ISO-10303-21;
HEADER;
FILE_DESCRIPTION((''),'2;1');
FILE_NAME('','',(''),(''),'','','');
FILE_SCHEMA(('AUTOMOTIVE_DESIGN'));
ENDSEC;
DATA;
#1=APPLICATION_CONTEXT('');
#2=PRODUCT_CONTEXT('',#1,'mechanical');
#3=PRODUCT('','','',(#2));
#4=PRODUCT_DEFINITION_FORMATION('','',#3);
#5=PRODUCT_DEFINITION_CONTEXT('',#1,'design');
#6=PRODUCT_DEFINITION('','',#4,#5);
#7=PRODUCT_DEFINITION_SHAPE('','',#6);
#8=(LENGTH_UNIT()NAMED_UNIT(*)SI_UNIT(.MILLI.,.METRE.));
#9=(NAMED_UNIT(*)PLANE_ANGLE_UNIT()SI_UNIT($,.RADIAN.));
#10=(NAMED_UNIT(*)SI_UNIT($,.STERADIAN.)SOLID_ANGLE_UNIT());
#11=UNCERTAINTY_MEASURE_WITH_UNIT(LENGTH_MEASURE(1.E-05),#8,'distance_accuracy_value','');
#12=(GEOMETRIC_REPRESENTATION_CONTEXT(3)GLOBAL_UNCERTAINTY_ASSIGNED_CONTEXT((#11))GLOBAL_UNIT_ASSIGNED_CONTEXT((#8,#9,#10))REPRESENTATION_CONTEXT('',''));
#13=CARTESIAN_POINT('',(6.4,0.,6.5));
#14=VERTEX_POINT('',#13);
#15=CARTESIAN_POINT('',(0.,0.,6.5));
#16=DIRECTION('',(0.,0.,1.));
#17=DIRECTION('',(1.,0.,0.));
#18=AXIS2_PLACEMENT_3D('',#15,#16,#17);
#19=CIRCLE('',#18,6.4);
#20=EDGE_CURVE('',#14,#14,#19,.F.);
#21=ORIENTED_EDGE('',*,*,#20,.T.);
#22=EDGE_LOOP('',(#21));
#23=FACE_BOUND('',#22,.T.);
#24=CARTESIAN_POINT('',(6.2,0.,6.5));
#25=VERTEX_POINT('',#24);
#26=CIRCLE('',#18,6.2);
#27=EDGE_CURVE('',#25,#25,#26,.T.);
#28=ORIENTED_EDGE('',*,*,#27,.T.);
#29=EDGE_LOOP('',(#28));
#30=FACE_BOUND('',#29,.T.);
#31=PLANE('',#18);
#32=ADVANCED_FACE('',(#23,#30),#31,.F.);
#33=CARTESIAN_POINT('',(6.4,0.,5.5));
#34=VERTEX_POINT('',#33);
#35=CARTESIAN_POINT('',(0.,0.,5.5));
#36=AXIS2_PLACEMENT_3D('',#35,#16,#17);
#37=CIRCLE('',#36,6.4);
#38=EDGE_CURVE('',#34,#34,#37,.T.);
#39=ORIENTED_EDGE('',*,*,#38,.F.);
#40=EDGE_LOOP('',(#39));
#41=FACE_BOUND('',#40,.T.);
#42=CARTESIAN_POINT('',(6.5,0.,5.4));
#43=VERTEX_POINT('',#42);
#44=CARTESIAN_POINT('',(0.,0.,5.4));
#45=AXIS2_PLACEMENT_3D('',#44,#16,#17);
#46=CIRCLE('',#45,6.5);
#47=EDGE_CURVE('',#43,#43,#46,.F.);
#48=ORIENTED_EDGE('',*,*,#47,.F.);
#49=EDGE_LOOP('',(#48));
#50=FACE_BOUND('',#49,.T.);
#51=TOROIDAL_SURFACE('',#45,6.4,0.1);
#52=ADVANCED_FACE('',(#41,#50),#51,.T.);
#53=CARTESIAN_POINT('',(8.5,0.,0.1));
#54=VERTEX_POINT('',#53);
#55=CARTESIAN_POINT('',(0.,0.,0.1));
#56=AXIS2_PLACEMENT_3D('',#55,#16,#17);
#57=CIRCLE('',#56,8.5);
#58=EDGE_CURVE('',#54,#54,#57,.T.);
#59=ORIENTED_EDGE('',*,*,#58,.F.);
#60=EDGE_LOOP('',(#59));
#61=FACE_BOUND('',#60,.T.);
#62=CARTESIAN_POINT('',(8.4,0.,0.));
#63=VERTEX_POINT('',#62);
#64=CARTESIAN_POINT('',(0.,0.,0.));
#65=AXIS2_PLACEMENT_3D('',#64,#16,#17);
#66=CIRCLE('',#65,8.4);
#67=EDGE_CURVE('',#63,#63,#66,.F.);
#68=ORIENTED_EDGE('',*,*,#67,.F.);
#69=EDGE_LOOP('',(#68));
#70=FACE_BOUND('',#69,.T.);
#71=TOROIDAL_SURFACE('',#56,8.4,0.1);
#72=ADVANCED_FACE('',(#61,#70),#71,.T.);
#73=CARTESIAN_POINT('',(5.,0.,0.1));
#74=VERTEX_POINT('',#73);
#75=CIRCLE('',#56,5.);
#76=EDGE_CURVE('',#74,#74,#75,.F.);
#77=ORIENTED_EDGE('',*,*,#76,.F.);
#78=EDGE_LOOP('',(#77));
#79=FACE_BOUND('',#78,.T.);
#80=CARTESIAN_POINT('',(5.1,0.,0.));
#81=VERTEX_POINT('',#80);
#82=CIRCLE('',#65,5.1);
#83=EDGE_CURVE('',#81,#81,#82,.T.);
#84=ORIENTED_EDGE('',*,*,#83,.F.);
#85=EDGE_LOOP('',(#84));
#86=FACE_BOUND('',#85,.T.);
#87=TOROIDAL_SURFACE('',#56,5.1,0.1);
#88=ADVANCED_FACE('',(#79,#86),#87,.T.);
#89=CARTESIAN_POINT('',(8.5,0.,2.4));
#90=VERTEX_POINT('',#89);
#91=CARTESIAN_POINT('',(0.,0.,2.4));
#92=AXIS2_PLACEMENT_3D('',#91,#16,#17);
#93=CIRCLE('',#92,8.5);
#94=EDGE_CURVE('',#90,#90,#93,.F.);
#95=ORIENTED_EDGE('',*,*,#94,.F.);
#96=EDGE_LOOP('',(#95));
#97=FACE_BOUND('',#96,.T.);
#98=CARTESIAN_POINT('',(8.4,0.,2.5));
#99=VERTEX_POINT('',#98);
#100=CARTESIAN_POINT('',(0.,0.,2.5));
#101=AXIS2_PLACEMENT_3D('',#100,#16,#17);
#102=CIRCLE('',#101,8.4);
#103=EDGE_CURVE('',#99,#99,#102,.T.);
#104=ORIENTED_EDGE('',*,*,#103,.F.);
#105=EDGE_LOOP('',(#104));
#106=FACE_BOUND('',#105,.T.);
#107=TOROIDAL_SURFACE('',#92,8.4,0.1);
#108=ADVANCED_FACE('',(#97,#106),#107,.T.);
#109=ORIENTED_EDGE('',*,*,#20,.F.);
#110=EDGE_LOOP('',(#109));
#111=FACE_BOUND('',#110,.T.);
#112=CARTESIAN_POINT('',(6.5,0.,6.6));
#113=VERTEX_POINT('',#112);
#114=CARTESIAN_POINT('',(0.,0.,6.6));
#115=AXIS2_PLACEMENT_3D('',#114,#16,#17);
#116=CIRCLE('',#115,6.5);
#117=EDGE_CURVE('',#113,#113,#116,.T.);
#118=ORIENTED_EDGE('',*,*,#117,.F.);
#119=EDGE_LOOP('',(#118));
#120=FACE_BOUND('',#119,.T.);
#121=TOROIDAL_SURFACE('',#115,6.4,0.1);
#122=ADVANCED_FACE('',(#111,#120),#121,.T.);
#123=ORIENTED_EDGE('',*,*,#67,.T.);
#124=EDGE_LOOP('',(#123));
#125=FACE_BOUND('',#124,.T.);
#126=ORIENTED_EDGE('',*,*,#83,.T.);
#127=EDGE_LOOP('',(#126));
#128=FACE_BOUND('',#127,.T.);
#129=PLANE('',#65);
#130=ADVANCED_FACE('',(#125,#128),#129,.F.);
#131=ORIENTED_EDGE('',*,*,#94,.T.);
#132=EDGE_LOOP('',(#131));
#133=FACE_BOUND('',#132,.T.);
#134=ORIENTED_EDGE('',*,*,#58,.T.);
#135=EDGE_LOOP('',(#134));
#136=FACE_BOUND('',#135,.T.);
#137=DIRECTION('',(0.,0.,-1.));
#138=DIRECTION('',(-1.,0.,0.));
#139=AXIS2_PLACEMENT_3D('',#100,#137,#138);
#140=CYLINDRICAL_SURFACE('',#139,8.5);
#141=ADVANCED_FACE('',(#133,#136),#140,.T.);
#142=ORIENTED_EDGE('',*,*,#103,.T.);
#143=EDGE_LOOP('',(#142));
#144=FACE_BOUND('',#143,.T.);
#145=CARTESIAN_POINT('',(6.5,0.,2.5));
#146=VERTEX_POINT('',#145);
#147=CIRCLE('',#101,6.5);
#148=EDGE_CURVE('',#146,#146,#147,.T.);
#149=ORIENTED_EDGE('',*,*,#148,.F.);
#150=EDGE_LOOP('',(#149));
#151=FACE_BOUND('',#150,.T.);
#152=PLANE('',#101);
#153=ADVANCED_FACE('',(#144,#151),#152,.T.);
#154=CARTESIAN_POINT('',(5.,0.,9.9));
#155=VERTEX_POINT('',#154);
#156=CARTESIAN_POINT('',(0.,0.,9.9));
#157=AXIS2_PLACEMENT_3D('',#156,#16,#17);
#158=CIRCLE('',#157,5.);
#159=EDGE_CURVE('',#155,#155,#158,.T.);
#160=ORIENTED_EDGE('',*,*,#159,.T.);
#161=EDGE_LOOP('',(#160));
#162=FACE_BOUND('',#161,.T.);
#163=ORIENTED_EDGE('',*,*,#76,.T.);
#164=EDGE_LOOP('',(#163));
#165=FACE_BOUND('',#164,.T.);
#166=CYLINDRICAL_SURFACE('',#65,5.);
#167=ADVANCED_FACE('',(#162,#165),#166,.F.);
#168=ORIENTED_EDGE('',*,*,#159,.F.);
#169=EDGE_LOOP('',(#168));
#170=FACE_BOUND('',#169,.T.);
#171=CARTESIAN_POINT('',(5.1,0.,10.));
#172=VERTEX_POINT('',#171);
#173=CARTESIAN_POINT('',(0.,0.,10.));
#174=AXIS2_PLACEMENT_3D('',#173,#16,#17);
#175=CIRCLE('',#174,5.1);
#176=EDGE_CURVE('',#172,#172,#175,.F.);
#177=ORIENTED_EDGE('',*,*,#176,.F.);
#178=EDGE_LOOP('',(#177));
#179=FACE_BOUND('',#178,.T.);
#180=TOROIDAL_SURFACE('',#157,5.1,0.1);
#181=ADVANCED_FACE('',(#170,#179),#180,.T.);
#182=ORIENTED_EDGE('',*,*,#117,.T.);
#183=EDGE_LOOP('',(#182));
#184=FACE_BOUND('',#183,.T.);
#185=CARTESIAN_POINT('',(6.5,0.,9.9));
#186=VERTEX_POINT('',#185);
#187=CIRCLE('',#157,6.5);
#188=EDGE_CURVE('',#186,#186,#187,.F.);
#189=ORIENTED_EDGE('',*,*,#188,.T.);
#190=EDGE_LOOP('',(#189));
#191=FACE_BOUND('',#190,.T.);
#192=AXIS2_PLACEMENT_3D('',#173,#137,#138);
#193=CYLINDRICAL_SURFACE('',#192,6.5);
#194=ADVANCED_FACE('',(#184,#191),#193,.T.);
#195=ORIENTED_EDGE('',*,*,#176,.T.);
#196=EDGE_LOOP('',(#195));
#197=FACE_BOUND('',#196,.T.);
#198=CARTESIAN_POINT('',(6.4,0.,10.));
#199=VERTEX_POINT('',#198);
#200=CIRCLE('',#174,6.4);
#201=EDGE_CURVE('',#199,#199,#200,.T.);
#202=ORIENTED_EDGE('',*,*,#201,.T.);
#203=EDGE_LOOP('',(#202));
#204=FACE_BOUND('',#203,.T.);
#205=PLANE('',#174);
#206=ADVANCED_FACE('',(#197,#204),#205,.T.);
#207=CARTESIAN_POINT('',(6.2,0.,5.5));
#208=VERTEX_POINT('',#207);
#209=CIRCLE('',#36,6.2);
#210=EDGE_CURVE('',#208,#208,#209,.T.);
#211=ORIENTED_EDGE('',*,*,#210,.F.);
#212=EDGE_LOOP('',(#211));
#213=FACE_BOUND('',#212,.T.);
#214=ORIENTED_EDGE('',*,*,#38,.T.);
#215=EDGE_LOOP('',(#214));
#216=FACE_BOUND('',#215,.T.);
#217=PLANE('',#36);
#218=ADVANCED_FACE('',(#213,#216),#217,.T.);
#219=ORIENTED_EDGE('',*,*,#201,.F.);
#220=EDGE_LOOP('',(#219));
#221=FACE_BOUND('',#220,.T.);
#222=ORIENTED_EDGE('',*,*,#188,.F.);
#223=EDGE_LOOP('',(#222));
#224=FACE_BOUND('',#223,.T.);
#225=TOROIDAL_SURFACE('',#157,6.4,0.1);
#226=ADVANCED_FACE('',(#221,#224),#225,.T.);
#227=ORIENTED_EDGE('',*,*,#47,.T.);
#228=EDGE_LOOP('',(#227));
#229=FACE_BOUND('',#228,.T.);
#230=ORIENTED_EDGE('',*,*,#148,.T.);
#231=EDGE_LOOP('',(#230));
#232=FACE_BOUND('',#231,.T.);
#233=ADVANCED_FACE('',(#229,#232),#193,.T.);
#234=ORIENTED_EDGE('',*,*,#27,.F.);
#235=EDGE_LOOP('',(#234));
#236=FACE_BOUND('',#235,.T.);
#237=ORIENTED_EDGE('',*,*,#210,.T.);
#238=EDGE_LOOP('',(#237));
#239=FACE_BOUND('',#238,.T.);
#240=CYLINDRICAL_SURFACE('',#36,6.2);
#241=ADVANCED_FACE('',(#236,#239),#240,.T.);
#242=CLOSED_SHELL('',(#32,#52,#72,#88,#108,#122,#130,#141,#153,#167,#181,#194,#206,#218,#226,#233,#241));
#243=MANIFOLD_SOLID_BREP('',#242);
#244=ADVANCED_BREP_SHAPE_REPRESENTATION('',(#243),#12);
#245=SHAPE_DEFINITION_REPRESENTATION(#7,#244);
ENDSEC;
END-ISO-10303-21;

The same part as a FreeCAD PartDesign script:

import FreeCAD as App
import Part
import Sketcher

V = App.Vector


def edges_at(feature, points):
    """Names of the edges that pass closest to the given points."""
    edges = feature.Shape.Edges
    near = lambda p: min(range(len(edges)), key=lambda i: edges[i].distToShape(Part.Vertex(*p))[0])
    return sorted({f"Edge{near(p) + 1}" for p in points})

doc = App.newDocument("Part")
body = doc.addObject("PartDesign::Body", "Body")

# Sketch on XY plane
sketch1 = body.newObject("Sketcher::SketchObject", "Sketch")
sketch1.AttachmentSupport = (doc.getObject("XY_Plane"), [""])
sketch1.MapMode = "FlatFace"
sketch1.addGeometry(Part.Circle(V(0, 0, 0), V(0, 0, 1), 8), False)
sketch1.addConstraint([
    Sketcher.Constraint("Coincident", 0, 3, -1, 1),
    Sketcher.Constraint("Diameter", 0, 17.0),
])
pad1 = body.newObject("PartDesign::Pad", "Pad")
pad1.Profile = sketch1
pad1.Length = 2.5

# Sketch on XY plane
sketch2 = body.newObject("Sketcher::SketchObject", "Sketch001")
sketch2.AttachmentSupport = (doc.getObject("XY_Plane"), [""])
sketch2.MapMode = "FlatFace"
sketch2.AttachmentOffset = App.Placement(V(0, 0, 2.5), App.Rotation())
sketch2.addGeometry(Part.Circle(V(0, 0, 0), V(0, 0, 1), 6), False)
sketch2.addConstraint([
    Sketcher.Constraint("Coincident", 0, 3, -1, 1),
    Sketcher.Constraint("Diameter", 0, 13.0),
])
pad2 = body.newObject("PartDesign::Pad", "Pad001")
pad2.Profile = sketch2
pad2.Length = 7.5

# Sketch on XY plane
sketch3 = body.newObject("Sketcher::SketchObject", "Sketch002")
sketch3.AttachmentSupport = (doc.getObject("XY_Plane"), [""])
sketch3.MapMode = "FlatFace"
sketch3.AttachmentOffset = App.Placement(V(0, 0, 10), App.Rotation())
sketch3.addGeometry(Part.Circle(V(0, 0, 0), V(0, 0, 1), 5), False)
sketch3.addConstraint([
    Sketcher.Constraint("Coincident", 0, 3, -1, 1),
    Sketcher.Constraint("Diameter", 0, 10.0),
])
pocket1 = body.newObject("PartDesign::Pocket", "Pocket")
pocket1.Profile = sketch3
pocket1.Type = "ThroughAll"
doc.recompute()

fillet = body.newObject("PartDesign::Fillet", "Fillet")
fillet.Base = (pocket1, edges_at(pocket1, [
    (-5, 0, 0),
    (-5, 0, 10),
    (-8.5, 0, 0),
    (-8.5, 0, 2.5),
    (-6.5, 0, 10),
]))
fillet.Radius = 0.1

# Sketch on XY plane
sketch4 = body.newObject("Sketcher::SketchObject", "Sketch003")
sketch4.AttachmentSupport = (doc.getObject("XY_Plane"), [""])
sketch4.MapMode = "FlatFace"
sketch4.AttachmentOffset = App.Placement(V(0, 0, 5.5), App.Rotation())
sketch4.addGeometry([
    Part.Circle(V(0, 0, 0), V(0, 0, 1), 6),
    Part.Circle(V(0, 0, 0), V(0, 0, 1), 6),
], False)
sketch4.addConstraint([
    Sketcher.Constraint("Coincident", 0, 3, -1, 1),
    Sketcher.Constraint("Coincident", 1, 3, -1, 1),
    Sketcher.Constraint("Diameter", 0, 13.0),
    Sketcher.Constraint("Diameter", 1, 12.4),
])
pocket2 = body.newObject("PartDesign::Pocket", "Pocket001")
pocket2.Profile = sketch4
pocket2.Length = 1
pocket2.Reversed = True
doc.recompute()

fillet2 = body.newObject("PartDesign::Fillet", "Fillet001")
fillet2.Base = (pocket2, edges_at(pocket2, [(-6.5, 0, 5.5), (-6.5, 0, 6.5)]))
fillet2.Radius = 0.1

doc.recompute()
